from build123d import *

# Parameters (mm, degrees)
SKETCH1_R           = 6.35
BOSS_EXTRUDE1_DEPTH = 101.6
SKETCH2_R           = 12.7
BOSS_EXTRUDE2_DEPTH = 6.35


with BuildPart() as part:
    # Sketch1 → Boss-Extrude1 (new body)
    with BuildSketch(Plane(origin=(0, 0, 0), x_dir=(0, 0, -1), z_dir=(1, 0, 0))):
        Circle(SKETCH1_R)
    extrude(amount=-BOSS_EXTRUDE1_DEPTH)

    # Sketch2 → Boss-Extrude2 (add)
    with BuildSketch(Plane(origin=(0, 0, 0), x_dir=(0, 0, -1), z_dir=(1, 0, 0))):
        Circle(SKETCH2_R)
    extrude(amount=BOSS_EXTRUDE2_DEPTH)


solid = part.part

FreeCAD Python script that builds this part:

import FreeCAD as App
import Part
import Sketcher

V = App.Vector
Q = App.Units.Quantity

doc = App.newDocument("Part")
params = doc.addObject("Spreadsheet::Sheet", "Params")
for row, (alias, value) in enumerate([
    ("sketch1_diameter", "0.5 in"),
    ("pad1_length", "4 in"),
    ("sketch2_diameter", "1 in"),
    ("pad2_length", "0.25 in"),
], start=1):
    params.set(f"A{row}", alias)
    params.set(f"B{row}", "=" + value)
    params.setAlias(f"B{row}", alias)

body = doc.addObject("PartDesign::Body", "Body")

sketch1 = body.newObject("Sketcher::SketchObject", "Sketch")
sketch1.AttachmentSupport = (doc.getObject("YZ_Plane"), [""])
sketch1.MapMode = "FlatFace"
sketch1.addGeometry(Part.Circle(V(0, 0, 0), V(0, 0, 1), 6), False)
sketch1.addConstraint([
    Sketcher.Constraint("Coincident", 0, 3, -1, 1),
    Sketcher.Constraint("Diameter", 0, Q("0.5 in")),
])
sketch1.setExpression("Constraints[1]", "Params.sketch1_diameter")
pad1 = body.newObject("PartDesign::Pad", "Pad")
pad1.Profile = sketch1
pad1.setExpression("Length", "Params.pad1_length")
pad1.Reversed = True

sketch2 = body.newObject("Sketcher::SketchObject", "Sketch001")
sketch2.AttachmentSupport = (doc.getObject("YZ_Plane"), [""])
sketch2.MapMode = "FlatFace"
sketch2.addGeometry(Part.Circle(V(0, 0, 0), V(0, 0, 1), 13), False)
sketch2.addConstraint([
    Sketcher.Constraint("Coincident", 0, 3, -1, 1),
    Sketcher.Constraint("Diameter", 0, Q("1 in")),
])
sketch2.setExpression("Constraints[1]", "Params.sketch2_diameter")
pad2 = body.newObject("PartDesign::Pad", "Pad001")
pad2.Profile = sketch2
pad2.setExpression("Length", "Params.pad2_length")

doc.recompute()
